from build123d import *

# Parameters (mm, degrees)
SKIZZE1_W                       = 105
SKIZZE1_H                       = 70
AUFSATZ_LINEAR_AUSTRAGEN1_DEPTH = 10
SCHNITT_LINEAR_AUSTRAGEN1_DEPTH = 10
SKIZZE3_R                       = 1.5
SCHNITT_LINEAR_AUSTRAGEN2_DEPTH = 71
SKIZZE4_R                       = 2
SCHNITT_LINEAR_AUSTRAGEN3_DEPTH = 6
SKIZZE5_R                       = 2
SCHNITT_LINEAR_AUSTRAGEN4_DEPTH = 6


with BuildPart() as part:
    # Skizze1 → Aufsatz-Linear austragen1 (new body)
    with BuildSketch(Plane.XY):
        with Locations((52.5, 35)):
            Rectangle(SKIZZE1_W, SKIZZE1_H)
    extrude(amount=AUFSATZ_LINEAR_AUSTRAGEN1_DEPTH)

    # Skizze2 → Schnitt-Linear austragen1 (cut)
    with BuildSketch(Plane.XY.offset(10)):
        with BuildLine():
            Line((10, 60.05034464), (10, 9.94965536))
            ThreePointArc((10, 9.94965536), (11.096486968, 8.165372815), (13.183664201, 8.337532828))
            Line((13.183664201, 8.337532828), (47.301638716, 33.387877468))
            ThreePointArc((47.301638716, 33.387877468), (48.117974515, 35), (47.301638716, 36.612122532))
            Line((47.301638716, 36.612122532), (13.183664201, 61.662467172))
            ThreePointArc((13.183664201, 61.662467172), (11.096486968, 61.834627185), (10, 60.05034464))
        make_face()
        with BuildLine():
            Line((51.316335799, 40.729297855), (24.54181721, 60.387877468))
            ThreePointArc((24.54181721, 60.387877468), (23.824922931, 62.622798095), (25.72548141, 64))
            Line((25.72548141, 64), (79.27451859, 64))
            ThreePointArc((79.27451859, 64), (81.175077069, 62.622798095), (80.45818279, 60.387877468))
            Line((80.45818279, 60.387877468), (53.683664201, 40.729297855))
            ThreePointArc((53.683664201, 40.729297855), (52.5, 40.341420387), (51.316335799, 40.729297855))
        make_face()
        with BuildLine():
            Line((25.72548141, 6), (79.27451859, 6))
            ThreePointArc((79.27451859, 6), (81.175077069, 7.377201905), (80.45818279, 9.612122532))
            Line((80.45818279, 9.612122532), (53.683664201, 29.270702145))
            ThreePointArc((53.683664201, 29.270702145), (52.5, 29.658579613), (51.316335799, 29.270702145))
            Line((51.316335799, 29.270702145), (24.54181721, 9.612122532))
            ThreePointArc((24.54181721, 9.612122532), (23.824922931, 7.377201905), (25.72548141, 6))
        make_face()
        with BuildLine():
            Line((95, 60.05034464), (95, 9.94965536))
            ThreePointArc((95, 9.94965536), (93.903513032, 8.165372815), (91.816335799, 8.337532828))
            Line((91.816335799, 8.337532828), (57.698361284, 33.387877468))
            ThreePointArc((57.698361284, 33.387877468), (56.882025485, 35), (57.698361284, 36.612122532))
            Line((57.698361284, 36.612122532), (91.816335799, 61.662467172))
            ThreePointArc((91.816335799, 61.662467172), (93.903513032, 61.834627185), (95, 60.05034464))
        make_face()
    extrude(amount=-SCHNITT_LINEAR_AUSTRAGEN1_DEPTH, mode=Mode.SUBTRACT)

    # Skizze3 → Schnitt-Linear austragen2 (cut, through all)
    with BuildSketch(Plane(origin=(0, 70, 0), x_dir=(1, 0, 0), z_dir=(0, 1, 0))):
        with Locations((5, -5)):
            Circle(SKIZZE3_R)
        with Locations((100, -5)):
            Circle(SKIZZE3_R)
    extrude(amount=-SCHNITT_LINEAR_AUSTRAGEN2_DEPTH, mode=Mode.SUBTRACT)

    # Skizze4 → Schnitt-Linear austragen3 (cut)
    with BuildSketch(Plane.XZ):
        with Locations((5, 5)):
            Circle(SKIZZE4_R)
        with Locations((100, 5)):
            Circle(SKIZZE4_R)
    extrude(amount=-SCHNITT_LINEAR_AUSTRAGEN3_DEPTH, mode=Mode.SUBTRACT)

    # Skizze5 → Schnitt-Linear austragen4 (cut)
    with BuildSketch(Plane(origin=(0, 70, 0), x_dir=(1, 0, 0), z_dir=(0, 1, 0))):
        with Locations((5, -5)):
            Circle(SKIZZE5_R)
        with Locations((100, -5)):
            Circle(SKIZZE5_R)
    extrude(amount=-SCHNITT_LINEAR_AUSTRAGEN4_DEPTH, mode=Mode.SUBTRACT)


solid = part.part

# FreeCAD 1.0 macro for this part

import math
import FreeCAD as App
import Part
import Sketcher
from FreeCAD import Vector
Q = App.Units.Quantity

doc = App.newDocument("Part")
body = doc.addObject("PartDesign::Body", "Body")

sketch1 = doc.addObject("Sketcher::SketchObject", "Sketch")
body.addObject(sketch1)
sketch1.AttachmentSupport = (doc.XY_Plane, [""])
sketch1.MapMode = "FlatFace"
sketch1.addGeometry([
    Part.LineSegment(Vector(0, 70, 0), Vector(0, 0, 0)),
    Part.LineSegment(Vector(0, 0, 0), Vector(105, 0, 0)),
    Part.LineSegment(Vector(105, 0, 0), Vector(105, 70, 0)),
    Part.LineSegment(Vector(105, 70, 0), Vector(0, 70, 0)),
], False)
sketch1.addConstraint([
    Sketcher.Constraint("Coincident", 0, 2, 1, 1),
    Sketcher.Constraint("Coincident", 1, 2, 2, 1),
    Sketcher.Constraint("Coincident", 2, 2, 3, 1),
    Sketcher.Constraint("Coincident", 3, 2, 0, 1),
    Sketcher.Constraint("Vertical", 0),
    Sketcher.Constraint("Horizontal", 1),
    Sketcher.Constraint("Vertical", 2),
    Sketcher.Constraint("Horizontal", 3),
    Sketcher.Constraint("Coincident", 0, 2, -1, 1),
    Sketcher.Constraint("DistanceX", 1, 1, 1, 2, Q("105 mm")),
    Sketcher.Constraint("DistanceY", 0, 2, 0, 1, Q("70 mm")),
])
pad1 = doc.addObject("PartDesign::Pad", "Pad")
body.addObject(pad1)
pad1.Profile = sketch1
pad1.Length = 10

sketch2 = doc.addObject("Sketcher::SketchObject", "Sketch001")
body.addObject(sketch2)
sketch2.AttachmentSupport = (doc.XY_Plane, [""])
sketch2.MapMode = "FlatFace"
sketch2.AttachmentOffset = App.Placement(Vector(0, 0, 10), App.Rotation())
sketch2.addGeometry([
    Part.LineSegment(Vector(10, 60.050345, 0), Vector(10, 9.949655, 0)),
    Part.ArcOfCircle(Part.Circle(Vector(12, 9.949655, 0), Vector(0, 0, 1), 2), math.radians(180), math.radians(306.287128)),
    Part.LineSegment(Vector(13.183664, 8.337533, 0), Vector(47.301639, 33.387877, 0)),
    Part.ArcOfCircle(Part.Circle(Vector(46.117975, 35, 0), Vector(0, 0, 1), 2), math.radians(-53.712872), math.radians(53.712872)),
    Part.LineSegment(Vector(47.301639, 36.612123, 0), Vector(13.183664, 61.662467, 0)),
    Part.ArcOfCircle(Part.Circle(Vector(12, 60.050345, 0), Vector(0, 0, 1), 2), math.radians(53.712872), math.radians(180)),
    Part.LineSegment(Vector(24.541817, 60.387877, 0), Vector(51.316336, 40.729298, 0)),
    Part.ArcOfCircle(Part.Circle(Vector(52.5, 42.34142, 0), Vector(0, 0, 1), 2), math.radians(-126.287128), math.radians(-53.712872)),
    Part.LineSegment(Vector(53.683664, 40.729298, 0), Vector(80.458183, 60.387877, 0)),
    Part.ArcOfCircle(Part.Circle(Vector(79.274519, 62, 0), Vector(0, 0, 1), 2), math.radians(-53.712872), math.radians(90)),
    Part.LineSegment(Vector(79.274519, 64, 0), Vector(25.725481, 64, 0)),
    Part.ArcOfCircle(Part.Circle(Vector(25.725481, 62, 0), Vector(0, 0, 1), 2), math.radians(90), math.radians(233.712872)),
    Part.LineSegment(Vector(25.725481, 6, 0), Vector(79.274519, 6, 0)),
    Part.ArcOfCircle(Part.Circle(Vector(79.274519, 8, 0), Vector(0, 0, 1), 2), math.radians(-90), math.radians(53.712872)),
    Part.LineSegment(Vector(80.458183, 9.612123, 0), Vector(53.683664, 29.270702, 0)),
    Part.ArcOfCircle(Part.Circle(Vector(52.5, 27.65858, 0), Vector(0, 0, 1), 2), math.radians(53.712872), math.radians(126.287128)),
    Part.LineSegment(Vector(51.316336, 29.270702, 0), Vector(24.541817, 9.612123, 0)),
    Part.ArcOfCircle(Part.Circle(Vector(25.725481, 8, 0), Vector(0, 0, 1), 2), math.radians(126.287128), math.radians(270)),
    Part.LineSegment(Vector(95, 9.949655, 0), Vector(95, 60.050345, 0)),
    Part.ArcOfCircle(Part.Circle(Vector(93, 60.050345, 0), Vector(0, 0, 1), 2), math.radians(0), math.radians(126.287128)),
    Part.LineSegment(Vector(91.816336, 61.662467, 0), Vector(57.698361, 36.612123, 0)),
    Part.ArcOfCircle(Part.Circle(Vector(58.882025, 35, 0), Vector(0, 0, 1), 2), math.radians(126.287128), math.radians(233.712872)),
    Part.LineSegment(Vector(57.698361, 33.387877, 0), Vector(91.816336, 8.337533, 0)),
    Part.ArcOfCircle(Part.Circle(Vector(93, 9.949655, 0), Vector(0, 0, 1), 2), math.radians(-126.287128), math.radians(0)),
], False)
sketch2.addConstraint([
    Sketcher.Constraint("Tangent", 0, 2, 1, 1),
    Sketcher.Constraint("Tangent", 1, 2, 2, 1),
    Sketcher.Constraint("Tangent", 2, 2, 3, 1),
    Sketcher.Constraint("Tangent", 3, 2, 4, 1),
    Sketcher.Constraint("Tangent", 4, 2, 5, 1),
    Sketcher.Constraint("Tangent", 5, 2, 0, 1),
    Sketcher.Constraint("Tangent", 6, 2, 7, 1),
    Sketcher.Constraint("Tangent", 7, 2, 8, 1),
    Sketcher.Constraint("Tangent", 8, 2, 9, 1),
    Sketcher.Constraint("Tangent", 9, 2, 10, 1),
    Sketcher.Constraint("Tangent", 10, 2, 11, 1),
    Sketcher.Constraint("Tangent", 11, 2, 6, 1),
    Sketcher.Constraint("Tangent", 12, 2, 13, 1),
    Sketcher.Constraint("Tangent", 13, 2, 14, 1),
    Sketcher.Constraint("Tangent", 14, 2, 15, 1),
    Sketcher.Constraint("Tangent", 15, 2, 16, 1),
    Sketcher.Constraint("Tangent", 16, 2, 17, 1),
    Sketcher.Constraint("Tangent", 17, 2, 12, 1),
    Sketcher.Constraint("Tangent", 18, 2, 19, 1),
    Sketcher.Constraint("Tangent", 19, 2, 20, 1),
    Sketcher.Constraint("Tangent", 20, 2, 21, 1),
    Sketcher.Constraint("Tangent", 21, 2, 22, 1),
    Sketcher.Constraint("Tangent", 22, 2, 23, 1),
    Sketcher.Constraint("Tangent", 23, 2, 18, 1),
    Sketcher.Constraint("Vertical", 0),
    Sketcher.Constraint("Horizontal", 10),
    Sketcher.Constraint("Horizontal", 12),
    Sketcher.Constraint("Vertical", 18),
    Sketcher.Constraint("Equal", 1, 3),
    Sketcher.Constraint("Equal", 3, 5),
    Sketcher.Constraint("Equal", 5, 7),
    Sketcher.Constraint("Equal", 7, 9),
    Sketcher.Constraint("Equal", 9, 11),
    Sketcher.Constraint("Equal", 11, 13),
    Sketcher.Constraint("Equal", 13, 15),
    Sketcher.Constraint("Equal", 15, 17),
    Sketcher.Constraint("Equal", 17, 19),
    Sketcher.Constraint("Equal", 19, 21),
    Sketcher.Constraint("Equal", 21, 23),
    Sketcher.Constraint("Parallel", 4, 6),
    Sketcher.Constraint("Parallel", 2, 8),
    Sketcher.Constraint("Parallel", 6, 14),
    Sketcher.Constraint("Parallel", 8, 16),
    Sketcher.Constraint("Parallel", 16, 20),
    Sketcher.Constraint("Parallel", 14, 22),
    Sketcher.Constraint("Horizontal", 5, 3, 19, 3),
    Sketcher.Constraint("Horizontal", 3, 3, 21, 3),
    Sketcher.Constraint("Horizontal", 1, 3, 23, 3),
    Sketcher.Constraint("Vertical", 9, 3, 13, 3),
    Sketcher.Constraint("Vertical", 7, 3, 15, 3),
    Sketcher.Constraint("Radius", 1, Q("2 mm")),
    Sketcher.Constraint("DistanceX", -1, 1, 1, 3, Q("12 mm")),
    Sketcher.Constraint("DistanceY", -1, 1, 3, 3, Q("35 mm")),
    Sketcher.Constraint("DistanceY", -1, 1, 9, 3, Q("62 mm")),
    Sketcher.Constraint("DistanceY", -1, 1, 13, 3, Q("8 mm")),
    Sketcher.Constraint("DistanceX", -1, 1, 19, 3, Q("93 mm")),
    Sketcher.Constraint("DistanceX", -1, 1, 7, 3, Q("52.5 mm")),
    Sketcher.Constraint("DistanceY", 0, 2, 0, 1, Q("50.100689 mm")),
    Sketcher.Constraint("Distance", 6, Q("33.216481 mm")),
    Sketcher.Constraint("DistanceX", 10, 2, 10, 1, Q("53.549037 mm")),
])
pocket1 = doc.addObject("PartDesign::Pocket", "Pocket")
body.addObject(pocket1)
pocket1.Profile = sketch2
pocket1.Length = 10

sketch3 = doc.addObject("Sketcher::SketchObject", "Sketch002")
body.addObject(sketch3)
sketch3.AttachmentSupport = (doc.XZ_Plane, [""])
sketch3.MapMode = "FlatFace"
sketch3.AttachmentOffset = App.Placement(Vector(0, 0, -70), App.Rotation())
sketch3.addGeometry([
    Part.Circle(Vector(5, 5, 0), Vector(0, 0, 1), 1.5),
    Part.Circle(Vector(100, 5, 0), Vector(0, 0, 1), 1.5),
], False)
sketch3.addConstraint([
    Sketcher.Constraint("Equal", 0, 1),
    Sketcher.Constraint("Horizontal", 0, 3, 1, 3),
    Sketcher.Constraint("Diameter", 0, Q("3 mm")),
    Sketcher.Constraint("DistanceX", -1, 1, 0, 3, Q("5 mm")),
    Sketcher.Constraint("DistanceY", -1, 1, 0, 3, Q("5 mm")),
    Sketcher.Constraint("DistanceX", -1, 1, 1, 3, Q("100 mm")),
])
pocket2 = doc.addObject("PartDesign::Pocket", "Pocket001")
body.addObject(pocket2)
pocket2.Profile = sketch3
pocket2.Type = "ThroughAll"
pocket2.Reversed = True

sketch4 = doc.addObject("Sketcher::SketchObject", "Sketch003")
body.addObject(sketch4)
sketch4.AttachmentSupport = (doc.XZ_Plane, [""])
sketch4.MapMode = "FlatFace"
sketch4.addGeometry([
    Part.Circle(Vector(5, 5, 0), Vector(0, 0, 1), 2),
    Part.Circle(Vector(100, 5, 0), Vector(0, 0, 1), 2),
], False)
sketch4.addConstraint([
    Sketcher.Constraint("Equal", 0, 1),
    Sketcher.Constraint("Horizontal", 0, 3, 1, 3),
    Sketcher.Constraint("Diameter", 0, Q("4 mm")),
    Sketcher.Constraint("DistanceX", -1, 1, 0, 3, Q("5 mm")),
    Sketcher.Constraint("DistanceY", -1, 1, 0, 3, Q("5 mm")),
    Sketcher.Constraint("DistanceX", -1, 1, 1, 3, Q("100 mm")),
])
pocket3 = doc.addObject("PartDesign::Pocket", "Pocket002")
body.addObject(pocket3)
pocket3.Profile = sketch4
pocket3.Length = 6

sketch5 = doc.addObject("Sketcher::SketchObject", "Sketch004")
body.addObject(sketch5)
sketch5.AttachmentSupport = (doc.XZ_Plane, [""])
sketch5.MapMode = "FlatFace"
sketch5.AttachmentOffset = App.Placement(Vector(0, 0, -70), App.Rotation())
sketch5.addGeometry([
    Part.Circle(Vector(5, 5, 0), Vector(0, 0, 1), 2),
    Part.Circle(Vector(100, 5, 0), Vector(0, 0, 1), 2),
], False)
sketch5.addConstraint([
    Sketcher.Constraint("Equal", 0, 1),
    Sketcher.Constraint("Horizontal", 0, 3, 1, 3),
    Sketcher.Constraint("Diameter", 0, Q("4 mm")),
    Sketcher.Constraint("DistanceX", -1, 1, 0, 3, Q("5 mm")),
    Sketcher.Constraint("DistanceY", -1, 1, 0, 3, Q("5 mm")),
    Sketcher.Constraint("DistanceX", -1, 1, 1, 3, Q("100 mm")),
])
pocket4 = doc.addObject("PartDesign::Pocket", "Pocket003")
body.addObject(pocket4)
pocket4.Profile = sketch5
pocket4.Length = 6
pocket4.Reversed = True

doc.recompute()
